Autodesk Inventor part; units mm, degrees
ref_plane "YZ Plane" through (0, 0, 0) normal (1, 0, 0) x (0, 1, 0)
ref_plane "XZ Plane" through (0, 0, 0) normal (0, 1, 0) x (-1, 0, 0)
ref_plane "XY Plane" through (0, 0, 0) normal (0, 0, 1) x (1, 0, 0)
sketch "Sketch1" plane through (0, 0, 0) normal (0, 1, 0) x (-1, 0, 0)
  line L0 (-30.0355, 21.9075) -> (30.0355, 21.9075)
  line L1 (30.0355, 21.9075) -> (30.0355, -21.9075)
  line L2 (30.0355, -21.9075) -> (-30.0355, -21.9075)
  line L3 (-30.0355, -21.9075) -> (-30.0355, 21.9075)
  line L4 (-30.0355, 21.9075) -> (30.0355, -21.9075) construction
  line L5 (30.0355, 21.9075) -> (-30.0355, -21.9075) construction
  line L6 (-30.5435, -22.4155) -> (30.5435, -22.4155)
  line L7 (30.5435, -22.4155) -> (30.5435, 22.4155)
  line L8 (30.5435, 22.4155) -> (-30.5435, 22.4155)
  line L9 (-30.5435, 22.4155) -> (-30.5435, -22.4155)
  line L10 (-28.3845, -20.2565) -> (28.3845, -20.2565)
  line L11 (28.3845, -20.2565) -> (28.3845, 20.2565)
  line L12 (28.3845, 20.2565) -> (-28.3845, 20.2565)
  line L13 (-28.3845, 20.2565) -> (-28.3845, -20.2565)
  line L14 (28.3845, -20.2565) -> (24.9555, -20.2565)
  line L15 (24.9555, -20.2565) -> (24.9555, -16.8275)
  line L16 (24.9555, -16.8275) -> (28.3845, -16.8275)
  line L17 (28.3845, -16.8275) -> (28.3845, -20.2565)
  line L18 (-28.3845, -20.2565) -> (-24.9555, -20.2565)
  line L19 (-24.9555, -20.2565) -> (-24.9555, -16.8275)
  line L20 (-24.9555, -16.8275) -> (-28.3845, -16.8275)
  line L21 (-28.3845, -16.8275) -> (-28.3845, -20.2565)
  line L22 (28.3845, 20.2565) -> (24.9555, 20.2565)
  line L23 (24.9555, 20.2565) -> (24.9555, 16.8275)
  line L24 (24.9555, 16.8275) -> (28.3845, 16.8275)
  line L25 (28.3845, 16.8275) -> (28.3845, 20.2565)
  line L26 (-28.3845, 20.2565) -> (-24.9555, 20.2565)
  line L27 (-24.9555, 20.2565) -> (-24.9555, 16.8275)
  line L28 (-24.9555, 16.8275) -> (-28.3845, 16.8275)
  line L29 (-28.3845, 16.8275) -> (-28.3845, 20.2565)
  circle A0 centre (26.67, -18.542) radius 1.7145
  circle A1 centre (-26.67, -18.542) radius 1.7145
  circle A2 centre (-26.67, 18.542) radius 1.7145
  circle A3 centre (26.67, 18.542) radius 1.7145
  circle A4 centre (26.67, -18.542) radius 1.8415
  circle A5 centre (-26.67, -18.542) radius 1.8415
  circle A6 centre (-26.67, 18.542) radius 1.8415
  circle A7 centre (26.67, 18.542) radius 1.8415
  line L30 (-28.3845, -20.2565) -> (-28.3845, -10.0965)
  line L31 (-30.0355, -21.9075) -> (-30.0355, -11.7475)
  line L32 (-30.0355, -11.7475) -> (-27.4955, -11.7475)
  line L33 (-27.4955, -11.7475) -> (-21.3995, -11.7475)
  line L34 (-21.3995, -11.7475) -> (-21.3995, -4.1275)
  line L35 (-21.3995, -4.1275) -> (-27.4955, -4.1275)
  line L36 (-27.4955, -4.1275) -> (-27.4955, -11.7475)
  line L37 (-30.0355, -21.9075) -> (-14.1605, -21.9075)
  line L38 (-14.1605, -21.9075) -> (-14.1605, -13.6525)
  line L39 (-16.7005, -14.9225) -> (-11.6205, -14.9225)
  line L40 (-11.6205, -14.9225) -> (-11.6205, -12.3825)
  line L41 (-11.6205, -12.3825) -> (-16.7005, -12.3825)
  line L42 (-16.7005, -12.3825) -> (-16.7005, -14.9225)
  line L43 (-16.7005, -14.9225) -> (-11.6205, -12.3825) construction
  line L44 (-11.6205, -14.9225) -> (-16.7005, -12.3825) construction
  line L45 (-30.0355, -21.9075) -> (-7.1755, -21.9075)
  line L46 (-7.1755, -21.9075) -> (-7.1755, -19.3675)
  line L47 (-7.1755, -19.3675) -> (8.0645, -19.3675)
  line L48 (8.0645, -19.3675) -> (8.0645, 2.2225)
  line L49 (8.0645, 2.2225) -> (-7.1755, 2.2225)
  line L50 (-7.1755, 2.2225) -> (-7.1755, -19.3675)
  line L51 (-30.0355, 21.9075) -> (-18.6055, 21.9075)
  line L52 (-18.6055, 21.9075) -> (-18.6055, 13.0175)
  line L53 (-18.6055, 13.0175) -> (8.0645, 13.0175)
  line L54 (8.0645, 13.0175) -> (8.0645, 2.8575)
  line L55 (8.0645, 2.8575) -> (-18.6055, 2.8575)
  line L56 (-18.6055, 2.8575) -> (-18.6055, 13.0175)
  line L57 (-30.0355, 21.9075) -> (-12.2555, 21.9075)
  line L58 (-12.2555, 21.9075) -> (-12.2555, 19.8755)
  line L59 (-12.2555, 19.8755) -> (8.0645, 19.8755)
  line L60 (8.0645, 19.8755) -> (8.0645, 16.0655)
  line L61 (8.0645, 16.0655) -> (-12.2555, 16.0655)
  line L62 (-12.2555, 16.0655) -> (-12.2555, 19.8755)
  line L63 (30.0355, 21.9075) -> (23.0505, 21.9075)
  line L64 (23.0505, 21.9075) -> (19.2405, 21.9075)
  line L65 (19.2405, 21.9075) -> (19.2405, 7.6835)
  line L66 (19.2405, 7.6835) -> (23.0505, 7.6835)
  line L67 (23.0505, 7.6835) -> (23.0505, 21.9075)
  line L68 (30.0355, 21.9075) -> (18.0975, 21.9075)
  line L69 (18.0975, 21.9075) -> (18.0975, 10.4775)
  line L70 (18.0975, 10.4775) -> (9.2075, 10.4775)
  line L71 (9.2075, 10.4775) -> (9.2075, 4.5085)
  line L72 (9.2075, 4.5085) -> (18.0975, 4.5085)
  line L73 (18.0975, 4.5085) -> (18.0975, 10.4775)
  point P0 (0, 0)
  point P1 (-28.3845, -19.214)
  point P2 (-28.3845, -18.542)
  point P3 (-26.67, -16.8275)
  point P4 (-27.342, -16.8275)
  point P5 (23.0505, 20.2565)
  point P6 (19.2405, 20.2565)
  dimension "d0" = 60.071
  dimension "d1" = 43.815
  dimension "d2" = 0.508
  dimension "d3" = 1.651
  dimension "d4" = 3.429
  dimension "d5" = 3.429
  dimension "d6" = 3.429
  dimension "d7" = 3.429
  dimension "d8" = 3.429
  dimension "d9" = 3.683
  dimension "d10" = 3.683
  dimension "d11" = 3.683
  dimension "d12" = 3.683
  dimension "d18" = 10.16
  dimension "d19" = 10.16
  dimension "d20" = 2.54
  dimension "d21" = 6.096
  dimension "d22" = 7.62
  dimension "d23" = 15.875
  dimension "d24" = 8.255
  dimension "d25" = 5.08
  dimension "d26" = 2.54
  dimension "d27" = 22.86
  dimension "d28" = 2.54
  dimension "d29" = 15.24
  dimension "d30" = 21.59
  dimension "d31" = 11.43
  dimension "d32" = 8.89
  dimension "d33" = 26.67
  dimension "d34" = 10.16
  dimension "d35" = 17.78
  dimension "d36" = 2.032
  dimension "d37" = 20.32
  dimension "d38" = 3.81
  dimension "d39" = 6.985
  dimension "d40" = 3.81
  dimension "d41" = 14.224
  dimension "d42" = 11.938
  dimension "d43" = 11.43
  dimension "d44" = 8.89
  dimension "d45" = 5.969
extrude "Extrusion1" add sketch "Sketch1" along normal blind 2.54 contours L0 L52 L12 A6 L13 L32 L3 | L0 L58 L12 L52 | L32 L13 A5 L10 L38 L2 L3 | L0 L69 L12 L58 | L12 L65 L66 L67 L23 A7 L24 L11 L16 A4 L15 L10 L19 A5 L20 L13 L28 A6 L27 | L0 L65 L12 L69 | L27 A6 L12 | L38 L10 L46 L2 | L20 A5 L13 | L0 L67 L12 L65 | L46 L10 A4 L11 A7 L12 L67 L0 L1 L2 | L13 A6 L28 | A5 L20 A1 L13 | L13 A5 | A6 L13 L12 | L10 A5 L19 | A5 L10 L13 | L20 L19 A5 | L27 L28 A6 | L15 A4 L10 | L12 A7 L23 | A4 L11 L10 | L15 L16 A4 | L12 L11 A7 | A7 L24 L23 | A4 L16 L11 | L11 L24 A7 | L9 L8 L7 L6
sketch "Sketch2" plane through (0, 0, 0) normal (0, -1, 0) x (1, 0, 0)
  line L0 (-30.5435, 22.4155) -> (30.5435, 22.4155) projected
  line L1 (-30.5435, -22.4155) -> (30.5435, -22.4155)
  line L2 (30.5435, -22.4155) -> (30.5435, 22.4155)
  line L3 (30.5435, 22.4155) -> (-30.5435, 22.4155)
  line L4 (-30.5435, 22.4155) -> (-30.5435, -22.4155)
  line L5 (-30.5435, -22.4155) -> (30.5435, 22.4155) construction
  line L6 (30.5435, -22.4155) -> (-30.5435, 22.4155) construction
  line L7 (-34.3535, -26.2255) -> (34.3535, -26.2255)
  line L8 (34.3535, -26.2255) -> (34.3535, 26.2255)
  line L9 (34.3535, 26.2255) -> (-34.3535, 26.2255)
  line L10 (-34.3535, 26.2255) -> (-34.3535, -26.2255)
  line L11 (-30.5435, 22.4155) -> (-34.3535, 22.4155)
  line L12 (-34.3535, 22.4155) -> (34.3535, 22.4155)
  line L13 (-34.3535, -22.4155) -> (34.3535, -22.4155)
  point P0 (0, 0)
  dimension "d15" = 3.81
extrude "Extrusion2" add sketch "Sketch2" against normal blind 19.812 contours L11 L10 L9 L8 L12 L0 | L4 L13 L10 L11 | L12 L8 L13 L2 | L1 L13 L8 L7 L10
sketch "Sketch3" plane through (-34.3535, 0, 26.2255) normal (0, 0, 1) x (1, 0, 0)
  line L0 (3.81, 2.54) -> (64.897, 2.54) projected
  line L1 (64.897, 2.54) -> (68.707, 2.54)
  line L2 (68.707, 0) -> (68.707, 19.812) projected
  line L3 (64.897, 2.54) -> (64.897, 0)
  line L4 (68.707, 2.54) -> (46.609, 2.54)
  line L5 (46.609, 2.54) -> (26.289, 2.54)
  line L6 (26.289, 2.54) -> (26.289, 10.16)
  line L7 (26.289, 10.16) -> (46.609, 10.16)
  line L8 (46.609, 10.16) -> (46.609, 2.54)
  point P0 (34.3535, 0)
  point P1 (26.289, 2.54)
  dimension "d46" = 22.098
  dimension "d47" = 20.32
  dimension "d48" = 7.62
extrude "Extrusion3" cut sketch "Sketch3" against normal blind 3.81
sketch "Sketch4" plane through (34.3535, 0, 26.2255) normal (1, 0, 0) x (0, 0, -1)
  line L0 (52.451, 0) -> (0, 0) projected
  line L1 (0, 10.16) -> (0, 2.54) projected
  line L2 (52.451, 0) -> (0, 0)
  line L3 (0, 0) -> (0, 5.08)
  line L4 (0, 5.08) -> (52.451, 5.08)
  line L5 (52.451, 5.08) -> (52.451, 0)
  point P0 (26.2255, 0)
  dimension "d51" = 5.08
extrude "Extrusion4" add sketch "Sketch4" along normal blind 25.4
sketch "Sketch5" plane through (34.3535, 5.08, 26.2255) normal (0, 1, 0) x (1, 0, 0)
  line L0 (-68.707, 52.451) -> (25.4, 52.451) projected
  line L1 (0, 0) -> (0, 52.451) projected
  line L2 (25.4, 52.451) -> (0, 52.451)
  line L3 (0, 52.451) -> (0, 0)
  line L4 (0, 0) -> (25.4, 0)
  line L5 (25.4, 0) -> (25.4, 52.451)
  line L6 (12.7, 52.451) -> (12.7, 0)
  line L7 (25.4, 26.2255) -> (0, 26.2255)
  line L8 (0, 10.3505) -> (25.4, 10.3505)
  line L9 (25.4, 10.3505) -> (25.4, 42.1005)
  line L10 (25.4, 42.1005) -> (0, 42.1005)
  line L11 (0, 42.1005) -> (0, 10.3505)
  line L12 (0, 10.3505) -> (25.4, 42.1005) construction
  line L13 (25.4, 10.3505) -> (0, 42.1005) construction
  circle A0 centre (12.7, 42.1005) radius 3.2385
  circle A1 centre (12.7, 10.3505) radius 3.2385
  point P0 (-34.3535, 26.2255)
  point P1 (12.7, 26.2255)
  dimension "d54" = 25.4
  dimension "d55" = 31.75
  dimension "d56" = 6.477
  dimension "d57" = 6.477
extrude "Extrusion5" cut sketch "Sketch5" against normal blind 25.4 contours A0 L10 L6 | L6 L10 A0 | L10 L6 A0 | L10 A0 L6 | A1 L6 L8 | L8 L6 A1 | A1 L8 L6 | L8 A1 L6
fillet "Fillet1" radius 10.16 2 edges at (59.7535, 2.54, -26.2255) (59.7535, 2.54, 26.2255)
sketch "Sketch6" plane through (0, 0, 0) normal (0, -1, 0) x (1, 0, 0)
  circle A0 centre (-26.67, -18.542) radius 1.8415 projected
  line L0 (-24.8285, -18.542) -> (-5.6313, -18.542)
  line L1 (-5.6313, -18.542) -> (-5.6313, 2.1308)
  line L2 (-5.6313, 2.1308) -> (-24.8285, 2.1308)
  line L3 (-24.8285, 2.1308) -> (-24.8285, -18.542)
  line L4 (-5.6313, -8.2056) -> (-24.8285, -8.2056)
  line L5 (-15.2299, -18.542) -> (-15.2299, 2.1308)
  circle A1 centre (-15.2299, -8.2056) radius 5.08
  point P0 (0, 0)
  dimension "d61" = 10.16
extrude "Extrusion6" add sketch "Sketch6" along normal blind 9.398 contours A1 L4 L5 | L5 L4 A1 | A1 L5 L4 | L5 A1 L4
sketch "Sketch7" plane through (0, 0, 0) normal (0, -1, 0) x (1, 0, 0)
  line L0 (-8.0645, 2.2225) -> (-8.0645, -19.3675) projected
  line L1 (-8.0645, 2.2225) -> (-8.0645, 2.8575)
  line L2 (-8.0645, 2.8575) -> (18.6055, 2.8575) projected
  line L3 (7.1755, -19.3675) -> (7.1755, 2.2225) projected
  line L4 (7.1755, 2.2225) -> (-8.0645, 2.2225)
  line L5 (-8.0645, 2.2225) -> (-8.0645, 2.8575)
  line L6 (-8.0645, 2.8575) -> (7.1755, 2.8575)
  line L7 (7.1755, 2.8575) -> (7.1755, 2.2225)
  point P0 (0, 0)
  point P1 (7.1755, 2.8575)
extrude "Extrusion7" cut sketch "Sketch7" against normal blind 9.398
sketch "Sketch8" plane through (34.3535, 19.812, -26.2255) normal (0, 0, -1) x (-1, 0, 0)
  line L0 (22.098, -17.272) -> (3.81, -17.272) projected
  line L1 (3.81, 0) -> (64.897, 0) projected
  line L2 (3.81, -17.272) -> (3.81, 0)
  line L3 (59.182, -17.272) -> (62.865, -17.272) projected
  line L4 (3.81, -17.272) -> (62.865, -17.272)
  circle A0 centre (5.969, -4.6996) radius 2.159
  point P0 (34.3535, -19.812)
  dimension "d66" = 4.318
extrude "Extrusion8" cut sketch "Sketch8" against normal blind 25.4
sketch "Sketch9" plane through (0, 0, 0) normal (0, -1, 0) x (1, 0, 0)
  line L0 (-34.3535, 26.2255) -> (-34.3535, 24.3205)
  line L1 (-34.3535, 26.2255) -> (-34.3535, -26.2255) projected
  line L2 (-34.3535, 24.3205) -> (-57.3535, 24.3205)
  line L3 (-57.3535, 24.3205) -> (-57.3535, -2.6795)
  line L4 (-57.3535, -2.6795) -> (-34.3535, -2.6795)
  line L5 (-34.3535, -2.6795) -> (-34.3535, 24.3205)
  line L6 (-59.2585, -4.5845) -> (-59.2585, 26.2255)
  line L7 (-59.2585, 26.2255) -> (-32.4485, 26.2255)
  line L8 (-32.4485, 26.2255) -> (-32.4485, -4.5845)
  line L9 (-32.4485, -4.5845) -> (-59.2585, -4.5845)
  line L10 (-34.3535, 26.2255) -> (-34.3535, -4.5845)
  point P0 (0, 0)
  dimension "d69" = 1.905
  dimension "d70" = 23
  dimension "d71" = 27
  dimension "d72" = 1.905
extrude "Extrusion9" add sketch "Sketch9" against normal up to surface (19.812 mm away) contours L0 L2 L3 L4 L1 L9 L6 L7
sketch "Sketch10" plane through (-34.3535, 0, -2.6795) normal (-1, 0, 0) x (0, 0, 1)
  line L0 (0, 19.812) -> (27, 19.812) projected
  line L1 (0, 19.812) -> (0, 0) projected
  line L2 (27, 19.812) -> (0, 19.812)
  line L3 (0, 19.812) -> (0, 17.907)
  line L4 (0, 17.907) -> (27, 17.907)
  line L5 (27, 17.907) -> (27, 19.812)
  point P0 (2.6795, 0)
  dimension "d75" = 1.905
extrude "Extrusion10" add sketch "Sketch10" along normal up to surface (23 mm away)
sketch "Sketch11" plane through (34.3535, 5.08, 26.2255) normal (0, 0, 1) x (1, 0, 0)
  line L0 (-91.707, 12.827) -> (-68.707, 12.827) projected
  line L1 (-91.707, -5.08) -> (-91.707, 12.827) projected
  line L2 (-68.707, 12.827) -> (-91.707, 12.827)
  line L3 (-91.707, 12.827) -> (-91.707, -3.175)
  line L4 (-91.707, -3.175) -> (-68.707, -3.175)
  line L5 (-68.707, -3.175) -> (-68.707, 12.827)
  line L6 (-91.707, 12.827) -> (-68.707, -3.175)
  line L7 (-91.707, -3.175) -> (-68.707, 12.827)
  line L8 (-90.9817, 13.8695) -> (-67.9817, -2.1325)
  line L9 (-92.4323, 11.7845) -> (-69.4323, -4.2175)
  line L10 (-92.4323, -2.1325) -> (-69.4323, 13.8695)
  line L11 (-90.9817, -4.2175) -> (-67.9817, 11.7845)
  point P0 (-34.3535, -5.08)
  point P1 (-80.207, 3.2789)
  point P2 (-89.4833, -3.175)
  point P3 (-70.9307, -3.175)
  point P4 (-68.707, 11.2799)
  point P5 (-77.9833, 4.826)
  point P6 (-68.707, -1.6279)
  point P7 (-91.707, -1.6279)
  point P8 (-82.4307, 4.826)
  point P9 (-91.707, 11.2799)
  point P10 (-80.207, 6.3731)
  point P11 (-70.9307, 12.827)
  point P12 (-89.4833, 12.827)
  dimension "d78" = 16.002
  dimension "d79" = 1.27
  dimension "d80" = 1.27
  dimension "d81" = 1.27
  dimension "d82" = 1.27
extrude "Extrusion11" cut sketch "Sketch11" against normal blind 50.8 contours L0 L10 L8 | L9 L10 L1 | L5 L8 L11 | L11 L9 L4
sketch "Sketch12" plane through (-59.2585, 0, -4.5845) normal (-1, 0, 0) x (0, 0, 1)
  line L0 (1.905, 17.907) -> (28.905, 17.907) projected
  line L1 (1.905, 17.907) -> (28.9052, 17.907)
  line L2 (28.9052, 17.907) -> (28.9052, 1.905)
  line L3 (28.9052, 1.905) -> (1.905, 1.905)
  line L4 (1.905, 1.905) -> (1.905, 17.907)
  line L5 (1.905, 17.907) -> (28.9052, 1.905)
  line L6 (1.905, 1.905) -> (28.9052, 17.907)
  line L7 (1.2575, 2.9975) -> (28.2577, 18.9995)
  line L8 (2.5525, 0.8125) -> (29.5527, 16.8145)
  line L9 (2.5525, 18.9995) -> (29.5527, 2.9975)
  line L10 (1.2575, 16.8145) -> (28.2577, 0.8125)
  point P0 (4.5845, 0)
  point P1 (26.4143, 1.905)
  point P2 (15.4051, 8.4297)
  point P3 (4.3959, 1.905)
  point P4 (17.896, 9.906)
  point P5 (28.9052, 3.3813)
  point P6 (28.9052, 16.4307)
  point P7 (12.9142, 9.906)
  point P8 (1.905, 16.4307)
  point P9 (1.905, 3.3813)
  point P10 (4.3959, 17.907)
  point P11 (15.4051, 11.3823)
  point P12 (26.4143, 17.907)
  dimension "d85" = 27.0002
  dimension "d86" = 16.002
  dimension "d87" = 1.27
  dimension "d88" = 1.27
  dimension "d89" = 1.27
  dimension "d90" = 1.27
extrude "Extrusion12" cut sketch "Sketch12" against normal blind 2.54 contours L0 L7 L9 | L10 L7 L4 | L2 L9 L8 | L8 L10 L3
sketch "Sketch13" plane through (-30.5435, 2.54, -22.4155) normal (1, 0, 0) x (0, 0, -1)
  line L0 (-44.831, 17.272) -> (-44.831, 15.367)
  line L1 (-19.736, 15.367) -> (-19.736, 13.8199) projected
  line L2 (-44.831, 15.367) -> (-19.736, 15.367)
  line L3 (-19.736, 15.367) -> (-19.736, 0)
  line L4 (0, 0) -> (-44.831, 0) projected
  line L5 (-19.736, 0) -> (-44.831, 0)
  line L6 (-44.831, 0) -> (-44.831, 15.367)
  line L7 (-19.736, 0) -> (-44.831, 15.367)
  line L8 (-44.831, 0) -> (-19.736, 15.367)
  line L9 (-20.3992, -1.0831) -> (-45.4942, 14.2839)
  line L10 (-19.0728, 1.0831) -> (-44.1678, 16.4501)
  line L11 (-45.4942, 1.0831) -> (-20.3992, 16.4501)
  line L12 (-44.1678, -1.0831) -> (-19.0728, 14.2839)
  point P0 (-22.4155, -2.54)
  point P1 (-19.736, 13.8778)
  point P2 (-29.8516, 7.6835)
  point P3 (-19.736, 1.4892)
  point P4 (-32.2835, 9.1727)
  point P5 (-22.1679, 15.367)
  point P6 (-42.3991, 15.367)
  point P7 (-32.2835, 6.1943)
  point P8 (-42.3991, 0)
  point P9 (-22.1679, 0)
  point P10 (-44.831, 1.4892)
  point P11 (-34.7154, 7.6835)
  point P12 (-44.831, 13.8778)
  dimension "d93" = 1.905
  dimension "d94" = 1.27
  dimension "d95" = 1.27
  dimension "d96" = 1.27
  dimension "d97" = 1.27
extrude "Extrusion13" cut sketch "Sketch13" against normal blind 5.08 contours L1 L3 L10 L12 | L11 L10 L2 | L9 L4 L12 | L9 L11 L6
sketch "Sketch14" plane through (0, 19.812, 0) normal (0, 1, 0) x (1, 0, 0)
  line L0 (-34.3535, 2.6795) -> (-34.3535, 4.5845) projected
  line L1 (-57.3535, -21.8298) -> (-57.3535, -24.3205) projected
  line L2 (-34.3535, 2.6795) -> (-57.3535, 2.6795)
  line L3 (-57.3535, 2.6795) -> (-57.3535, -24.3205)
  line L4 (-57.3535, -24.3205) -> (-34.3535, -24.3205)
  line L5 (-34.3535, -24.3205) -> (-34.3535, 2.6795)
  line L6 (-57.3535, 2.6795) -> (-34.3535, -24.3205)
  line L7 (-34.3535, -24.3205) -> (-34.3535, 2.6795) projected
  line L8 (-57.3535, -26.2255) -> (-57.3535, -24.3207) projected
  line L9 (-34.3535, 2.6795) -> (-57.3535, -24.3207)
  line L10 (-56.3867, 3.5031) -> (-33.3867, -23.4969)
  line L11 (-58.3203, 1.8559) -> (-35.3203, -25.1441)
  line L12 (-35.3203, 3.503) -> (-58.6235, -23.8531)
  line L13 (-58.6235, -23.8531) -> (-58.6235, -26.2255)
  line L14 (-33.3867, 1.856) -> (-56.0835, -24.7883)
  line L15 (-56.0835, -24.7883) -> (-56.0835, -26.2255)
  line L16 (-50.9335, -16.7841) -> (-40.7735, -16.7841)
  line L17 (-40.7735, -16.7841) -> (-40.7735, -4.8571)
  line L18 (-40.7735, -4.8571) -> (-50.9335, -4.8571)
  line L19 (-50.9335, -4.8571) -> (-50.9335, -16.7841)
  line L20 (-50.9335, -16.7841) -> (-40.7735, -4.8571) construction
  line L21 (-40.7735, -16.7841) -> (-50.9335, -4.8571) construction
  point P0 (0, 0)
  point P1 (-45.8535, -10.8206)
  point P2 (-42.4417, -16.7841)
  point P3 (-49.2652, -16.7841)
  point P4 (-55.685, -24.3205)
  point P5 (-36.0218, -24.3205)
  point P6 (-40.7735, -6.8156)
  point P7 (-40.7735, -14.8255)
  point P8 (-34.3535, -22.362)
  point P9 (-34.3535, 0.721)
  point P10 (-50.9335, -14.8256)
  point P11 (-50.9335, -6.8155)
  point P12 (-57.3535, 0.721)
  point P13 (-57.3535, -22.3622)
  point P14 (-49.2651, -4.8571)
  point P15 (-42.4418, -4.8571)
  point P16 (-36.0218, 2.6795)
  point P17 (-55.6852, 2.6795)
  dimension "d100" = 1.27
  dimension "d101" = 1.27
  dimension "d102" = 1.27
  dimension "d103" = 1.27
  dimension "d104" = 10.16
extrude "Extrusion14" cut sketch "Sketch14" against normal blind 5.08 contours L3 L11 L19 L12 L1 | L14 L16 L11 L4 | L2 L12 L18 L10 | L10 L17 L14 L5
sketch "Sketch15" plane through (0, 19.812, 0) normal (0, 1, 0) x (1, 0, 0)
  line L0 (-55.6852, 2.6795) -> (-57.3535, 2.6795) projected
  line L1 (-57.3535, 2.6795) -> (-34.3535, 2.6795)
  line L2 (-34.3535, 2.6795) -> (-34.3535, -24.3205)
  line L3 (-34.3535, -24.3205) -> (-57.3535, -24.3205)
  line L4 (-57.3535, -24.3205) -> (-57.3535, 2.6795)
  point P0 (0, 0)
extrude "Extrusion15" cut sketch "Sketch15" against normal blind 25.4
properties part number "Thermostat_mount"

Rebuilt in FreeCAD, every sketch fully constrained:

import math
import FreeCAD as App
import Part
import Sketcher
Q = App.Units.Quantity


def edges_at(feature, points):
    """Names of the edges that pass closest to the given points."""
    edges = feature.Shape.Edges
    near = lambda p: min(range(len(edges)), key=lambda i: edges[i].distToShape(Part.Vertex(*p))[0])
    return sorted({f"Edge{near(p) + 1}" for p in points})


def add_polygon(sketch, points):
    """Adds a closed chain of lines whose ends are joined by coincident constraints."""
    first, n = sketch.GeometryCount, len(points)
    for a, b in zip(points, points[1:] + points[:1]):
        sketch.addGeometry(Part.LineSegment(App.Vector(*a, 0), App.Vector(*b, 0)), False)
    for i in range(n):
        sketch.addConstraint(Sketcher.Constraint("Coincident", first + i, 2, first + (i + 1) % n, 1))

doc = App.newDocument("Part")
body = doc.addObject("PartDesign::Body", "Body")

# Sketch on XZ plane
sketch1 = body.newObject("Sketcher::SketchObject", "Sketch")
sketch1.AttachmentSupport = (doc.getObject("XZ_Plane"), [""])
sketch1.MapMode = "FlatFace"
add_polygon(sketch1, [(30.5435, 22.4155), (30.5435, -22.4155), (-30.5435, -22.4155), (-30.5435, 22.4155)])  # lines 0-3
sketch1.addGeometry(Part.Circle(App.Vector(26.67, 18.542, 0), App.Vector(0, 0, 1), 1.8415), False)  # 4
add_polygon(sketch1, [(-19.2405, 7.6835), (-19.2405, 20.2565), (-23.0505, 20.2565), (-23.0505, 7.6835)])  # lines 5-8
sketch1.addGeometry(Part.Circle(App.Vector(-26.67, 18.542, 0), App.Vector(0, 0, 1), 1.8415), False)  # 9
sketch1.addGeometry(Part.Circle(App.Vector(-26.67, -18.542, 0), App.Vector(0, 0, 1), 1.8415), False)  # 10
sketch1.addGeometry(Part.LineSegment(App.Vector(28.3845, -19.214021, 0), App.Vector(28.3845, -18.542, 0)), False)  # 11
sketch1.addGeometry(Part.ArcOfCircle(Part.Circle(App.Vector(26.67, -18.542, 0), App.Vector(0, 0, 1), 1.7145), math.radians(0), math.radians(90)), False)  # 12
sketch1.addGeometry(Part.LineSegment(App.Vector(26.67, -16.8275, 0), App.Vector(27.342021, -16.8275, 0)), False)  # 13
sketch1.addGeometry(Part.ArcOfCircle(Part.Circle(App.Vector(26.67, -18.542, 0), App.Vector(0, 0, 1), 1.8415), math.radians(68.59665), math.radians(338.59665)), False)  # 14
add_polygon(sketch1, [(11.6205, -14.9225), (14.1605, -14.9225), (16.7005, -14.9225), (16.7005, -12.3825), (11.6205, -12.3825)])  # lines 15-19
add_polygon(sketch1, [(21.3995, -11.7475), (27.4955, -11.7475), (27.4955, -4.1275), (21.3995, -4.1275)])  # lines 20-23
add_polygon(sketch1, [(-8.0645, -19.3675), (7.1755, -19.3675), (7.1755, 2.2225), (-8.0645, 2.2225)])  # lines 24-27
add_polygon(sketch1, [(18.6055, 2.8575), (18.6055, 13.0175), (-8.0645, 13.0175), (-8.0645, 2.8575)])  # lines 28-31
add_polygon(sketch1, [(12.2555, 16.0655), (12.2555, 19.8755), (-8.0645, 19.8755), (-8.0645, 16.0655)])  # lines 32-35
add_polygon(sketch1, [(-9.2075, 10.4775), (-18.0975, 10.4775), (-18.0975, 4.5085), (-9.2075, 4.5085)])  # lines 36-39
sketch1.addConstraint(Sketcher.Constraint("Tangent", 11, 2, 12, 1))
sketch1.addConstraint(Sketcher.Constraint("Tangent", 12, 2, 13, 1))
sketch1.addConstraint(Sketcher.Constraint("Coincident", 13, 2, 14, 1))
sketch1.addConstraint(Sketcher.Constraint("Coincident", 14, 2, 11, 1))
sketch1.addConstraint(Sketcher.Constraint("Vertical", 0))
sketch1.addConstraint(Sketcher.Constraint("Horizontal", 1))
sketch1.addConstraint(Sketcher.Constraint("Vertical", 2))
sketch1.addConstraint(Sketcher.Constraint("Horizontal", 3))
sketch1.addConstraint(Sketcher.Constraint("Vertical", 5))
sketch1.addConstraint(Sketcher.Constraint("Horizontal", 6))
sketch1.addConstraint(Sketcher.Constraint("Vertical", 7))
sketch1.addConstraint(Sketcher.Constraint("Horizontal", 8))
sketch1.addConstraint(Sketcher.Constraint("Vertical", 11))
sketch1.addConstraint(Sketcher.Constraint("Horizontal", 13))
sketch1.addConstraint(Sketcher.Constraint("Horizontal", 15))
sketch1.addConstraint(Sketcher.Constraint("Horizontal", 16))
sketch1.addConstraint(Sketcher.Constraint("Vertical", 17))
sketch1.addConstraint(Sketcher.Constraint("Horizontal", 18))
sketch1.addConstraint(Sketcher.Constraint("Vertical", 19))
sketch1.addConstraint(Sketcher.Constraint("Horizontal", 20))
sketch1.addConstraint(Sketcher.Constraint("Vertical", 21))
sketch1.addConstraint(Sketcher.Constraint("Horizontal", 22))
sketch1.addConstraint(Sketcher.Constraint("Vertical", 23))
sketch1.addConstraint(Sketcher.Constraint("Horizontal", 24))
sketch1.addConstraint(Sketcher.Constraint("Vertical", 25))
sketch1.addConstraint(Sketcher.Constraint("Horizontal", 26))
sketch1.addConstraint(Sketcher.Constraint("Vertical", 27))
sketch1.addConstraint(Sketcher.Constraint("Vertical", 28))
sketch1.addConstraint(Sketcher.Constraint("Horizontal", 29))
sketch1.addConstraint(Sketcher.Constraint("Vertical", 30))
sketch1.addConstraint(Sketcher.Constraint("Horizontal", 31))
sketch1.addConstraint(Sketcher.Constraint("Vertical", 32))
sketch1.addConstraint(Sketcher.Constraint("Horizontal", 33))
sketch1.addConstraint(Sketcher.Constraint("Vertical", 34))
sketch1.addConstraint(Sketcher.Constraint("Horizontal", 35))
sketch1.addConstraint(Sketcher.Constraint("Horizontal", 36))
sketch1.addConstraint(Sketcher.Constraint("Vertical", 37))
sketch1.addConstraint(Sketcher.Constraint("Horizontal", 38))
sketch1.addConstraint(Sketcher.Constraint("Vertical", 39))
sketch1.addConstraint(Sketcher.Constraint("Coincident", 14, 3, 12, 3))
sketch1.addConstraint(Sketcher.Constraint("Equal", 4, 9))
sketch1.addConstraint(Sketcher.Constraint("Equal", 9, 10))
sketch1.addConstraint(Sketcher.Constraint("Equal", 10, 14))
sketch1.addConstraint(Sketcher.Constraint("Symmetric", 4, 3, 10, 3, -1, 1))
sketch1.addConstraint(Sketcher.Constraint("Symmetric", 9, 3, 12, 3, -1, 1))
sketch1.addConstraint(Sketcher.Constraint("Symmetric", 0, 2, 2, 2, -1, 1))
sketch1.addConstraint(Sketcher.Constraint("Symmetric", 4, 3, 9, 3, -2))
sketch1.addConstraint(Sketcher.Constraint("Vertical", 27, 2, 29, 2))
sketch1.addConstraint(Sketcher.Constraint("Vertical", 30, 2, 33, 2))
sketch1.addConstraint(Sketcher.Constraint("Equal", 15, 16))
sketch1.addConstraint(Sketcher.Constraint("Equal", 16, 17))
sketch1.addConstraint(Sketcher.Constraint("Equal", 8, 32))
sketch1.addConstraint(Sketcher.Constraint("Diameter", 4, Q("0.145 in")))
sketch1.addConstraint(Sketcher.Constraint("DistanceX", 15, 1, 15, 2, Q("0.1 in")))
sketch1.addConstraint(Sketcher.Constraint("DistanceX", 24, 1, 24, 2, Q("0.6 in")))
sketch1.addConstraint(Sketcher.Constraint("DistanceX", 33, 2, 33, 1, Q("0.8 in")))
sketch1.addConstraint(Sketcher.Constraint("DistanceY", 21, 1, 21, 2, Q("0.3 in")))
sketch1.addConstraint(Sketcher.Constraint("DistanceY", 28, 1, 28, 2, Q("0.4 in")))
sketch1.addConstraint(Sketcher.Constraint("DistanceX", 6, 2, 6, 1, Q("0.15 in")))
sketch1.addConstraint(Sketcher.Constraint("DistanceX", 20, 1, 20, 2, Q("0.24 in")))
sketch1.addConstraint(Sketcher.Constraint("DistanceX", 29, 2, 29, 1, Q("1.05 in")))
sketch1.addConstraint(Sketcher.Constraint("DistanceX", 36, 2, 36, 1, Q("0.35 in")))
sketch1.addConstraint(Sketcher.Constraint("DistanceY", 25, 1, 25, 2, Q("0.85 in")))
sketch1.addConstraint(Sketcher.Constraint("Radius", 12, Q("0.0675 in")))
sketch1.addConstraint(Sketcher.Constraint("DistanceY", 13, 2, 20, 2, Q("0.2 in")))
sketch1.addConstraint(Sketcher.Constraint("DistanceY", 32, 2, 3, 2, Q("0.1 in")))
sketch1.addConstraint(Sketcher.Constraint("DistanceY", 36, 2, 29, 2, Q("0.1 in")))
sketch1.addConstraint(Sketcher.Constraint("DistanceY", 37, 2, 37, 1, Q("0.235 in")))
sketch1.addConstraint(Sketcher.Constraint("DistanceX", -1, 1, 4, 3, Q("1.05 in")))
sketch1.addConstraint(Sketcher.Constraint("DistanceX", 15, 2, 11, 2, Q("0.56 in")))
sketch1.addConstraint(Sketcher.Constraint("DistanceX", 25, 2, 22, 2, Q("0.56 in")))
sketch1.addConstraint(Sketcher.Constraint("DistanceX", 28, 2, 3, 2, Q("0.47 in")))
sketch1.addConstraint(Sketcher.Constraint("DistanceY", 17, 2, 21, 2, Q("0.325 in")))
sketch1.addConstraint(Sketcher.Constraint("DistanceX", 24, 2, 15, 2, Q("0.275 in")))
sketch1.addConstraint(Sketcher.Constraint("DistanceY", 24, 2, 18, 2, Q("0.275 in")))
sketch1.addConstraint(Sketcher.Constraint("DistanceY", 22, 2, 31, 2, Q("0.275 in")))
sketch1.addConstraint(Sketcher.Constraint("DistanceY", 0, 2, 0, 1, Q("1.765 in")))
sketch1.addConstraint(Sketcher.Constraint("DistanceY", 5, 1, 5, 2, Q("0.495 in")))
sketch1.addConstraint(Sketcher.Constraint("DistanceY", -1, 1, 4, 3, Q("0.73 in")))
sketch1.addConstraint(Sketcher.Constraint("DistanceY", 1, 2, 5, 2, Q("1.68 in")))
sketch1.addConstraint(Sketcher.Constraint("DistanceX", 8, 2, 26, 2, Q("0.44 in")))
sketch1.addConstraint(Sketcher.Constraint("DistanceX", 8, 2, 36, 2, Q("0.045 in")))
pad1 = body.newObject("PartDesign::Pad", "Pad")
pad1.Profile = sketch1
pad1.Length = Q("0.1 in")
pad1.Reversed = True

# Sketch on XZ plane
sketch2 = body.newObject("Sketcher::SketchObject", "Sketch001")
sketch2.AttachmentSupport = (doc.getObject("XZ_Plane"), [""])
sketch2.MapMode = "FlatFace"
add_polygon(sketch2, [(-34.3535, 26.2255), (-34.3535, -26.2255), (34.3535, -26.2255), (34.3535, 26.2255)])  # lines 0-3
add_polygon(sketch2, [(-30.5435, 22.4155), (30.5435, 22.4155), (30.5435, -22.4155), (-30.5435, -22.4155)])  # lines 4-7
sketch2.addConstraint(Sketcher.Constraint("Vertical", 0))
sketch2.addConstraint(Sketcher.Constraint("Horizontal", 1))
sketch2.addConstraint(Sketcher.Constraint("Vertical", 2))
sketch2.addConstraint(Sketcher.Constraint("Horizontal", 3))
sketch2.addConstraint(Sketcher.Constraint("Horizontal", 4))
sketch2.addConstraint(Sketcher.Constraint("Vertical", 5))
sketch2.addConstraint(Sketcher.Constraint("Horizontal", 6))
sketch2.addConstraint(Sketcher.Constraint("Vertical", 7))
sketch2.addConstraint(Sketcher.Constraint("Symmetric", 0, 2, 2, 2, -1, 1))
sketch2.addConstraint(Sketcher.Constraint("Symmetric", 4, 2, 6, 2, -1, 1))
sketch2.addConstraint(Sketcher.Constraint("DistanceX", 4, 2, 2, 2, Q("0.15 in")))
sketch2.addConstraint(Sketcher.Constraint("DistanceY", 4, 2, 2, 2, Q("0.15 in")))
sketch2.addConstraint(Sketcher.Constraint("DistanceX", 1, 1, 1, 2, Q("2.705 in")))
sketch2.addConstraint(Sketcher.Constraint("DistanceY", 0, 2, 0, 1, Q("2.065 in")))
pad2 = body.newObject("PartDesign::Pad", "Pad001")
pad2.Profile = sketch2
pad2.Length = Q("0.78 in")
pad2.Reversed = True

# Sketch on XY plane
sketch3 = body.newObject("Sketcher::SketchObject", "Sketch002")
sketch3.AttachmentSupport = (doc.getObject("XY_Plane"), [""])
sketch3.MapMode = "FlatFace"
sketch3.AttachmentOffset = App.Placement(App.Vector(0, 0, 1.0325 * 25.4), App.Rotation())
add_polygon(sketch3, [(-8.0645, 10.16), (-8.0645, 2.54), (12.2555, 2.54), (12.2555, 10.16)])  # lines 0-3
sketch3.addConstraint(Sketcher.Constraint("Vertical", 0))
sketch3.addConstraint(Sketcher.Constraint("Horizontal", 1))
sketch3.addConstraint(Sketcher.Constraint("Vertical", 2))
sketch3.addConstraint(Sketcher.Constraint("Horizontal", 3))
sketch3.addConstraint(Sketcher.Constraint("DistanceX", 1, 1, 1, 2, Q("0.8 in")))
sketch3.addConstraint(Sketcher.Constraint("DistanceY", 0, 2, 0, 1, Q("0.3 in")))
sketch3.addConstraint(Sketcher.Constraint("DistanceY", -1, 1, 0, 2, Q("0.1 in")))
sketch3.addConstraint(Sketcher.Constraint("DistanceX", 0, 2, -1, 1, Q("0.3175 in")))
pocket1 = body.newObject("PartDesign::Pocket", "Pocket")
pocket1.Profile = sketch3
pocket1.Length = Q("0.15 in")

# Sketch on YZ plane
sketch4 = body.newObject("Sketcher::SketchObject", "Sketch003")
sketch4.AttachmentSupport = (doc.getObject("YZ_Plane"), [""])
sketch4.MapMode = "FlatFace"
sketch4.AttachmentOffset = App.Placement(App.Vector(0, 0, 1.3525 * 25.4), App.Rotation())
add_polygon(sketch4, [(0, 26.2255), (0, -26.2255), (5.08, -26.2255), (5.08, 26.2255)])  # lines 0-3
sketch4.addConstraint(Sketcher.Constraint("Vertical", 0))
sketch4.addConstraint(Sketcher.Constraint("Horizontal", 1))
sketch4.addConstraint(Sketcher.Constraint("Vertical", 2))
sketch4.addConstraint(Sketcher.Constraint("Horizontal", 3))
sketch4.addConstraint(Sketcher.Constraint("Symmetric", 0, 2, 3, 2, -1, 1))
sketch4.addConstraint(Sketcher.Constraint("DistanceX", 1, 1, 1, 2, Q("0.2 in")))
sketch4.addConstraint(Sketcher.Constraint("DistanceY", 0, 2, 0, 1, Q("2.065 in")))
pad3 = body.newObject("PartDesign::Pad", "Pad002")
pad3.Profile = sketch4
pad3.Length = Q("1 in")

# Sketch on XZ plane
sketch5 = body.newObject("Sketcher::SketchObject", "Sketch004")
sketch5.AttachmentSupport = (doc.getObject("XZ_Plane"), [""])
sketch5.MapMode = "FlatFace"
sketch5.AttachmentOffset = App.Placement(App.Vector(0, 0, -0.2 * 25.4), App.Rotation())
sketch5.addGeometry(Part.Circle(App.Vector(47.0535, -15.875, 0), App.Vector(0, 0, 1), 3.2385), False)
sketch5.addGeometry(Part.Circle(App.Vector(47.0535, 15.875, 0), App.Vector(0, 0, 1), 3.2385), False)
sketch5.addConstraint(Sketcher.Constraint("Equal", 0, 1))
sketch5.addConstraint(Sketcher.Constraint("Symmetric", 0, 3, 1, 3, -1))
sketch5.addConstraint(Sketcher.Constraint("Diameter", 0, Q("0.255 in")))
sketch5.addConstraint(Sketcher.Constraint("DistanceY", 0, 3, 1, 3, Q("1.25 in")))
sketch5.addConstraint(Sketcher.Constraint("DistanceX", -1, 1, 0, 3, Q("1.8525 in")))
pocket2 = body.newObject("PartDesign::Pocket", "Pocket001")
pocket2.Profile = sketch5
pocket2.Length = Q("1 in")
pocket2.Reversed = True
doc.recompute()

fillet = body.newObject("PartDesign::Fillet", "Fillet")
fillet.Base = (pocket2, edges_at(pocket2, [(59.754, 2.54, -26.226), (59.754, 2.54, 26.226)]))
fillet.Radius = Q("0.4 in")

# Sketch on XZ plane
sketch6 = body.newObject("Sketcher::SketchObject", "Sketch005")
sketch6.AttachmentSupport = (doc.getObject("XZ_Plane"), [""])
sketch6.MapMode = "FlatFace"
sketch6.addGeometry(Part.Circle(App.Vector(-15.2299, -8.2056, 0), App.Vector(0, 0, 1), 5.08), False)
sketch6.addConstraint(Sketcher.Constraint("Diameter", 0, Q("0.4 in")))
sketch6.addConstraint(Sketcher.Constraint("DistanceX", 0, 3, -1, 1, Q("0.5996 in")))
sketch6.addConstraint(Sketcher.Constraint("DistanceY", 0, 3, -1, 1, 8.2056))
pad4 = body.newObject("PartDesign::Pad", "Pad003")
pad4.Profile = sketch6
pad4.Length = Q("0.37 in")

# Sketch on XZ plane
sketch7 = body.newObject("Sketcher::SketchObject", "Sketch006")
sketch7.AttachmentSupport = (doc.getObject("XZ_Plane"), [""])
sketch7.MapMode = "FlatFace"
add_polygon(sketch7, [(-8.0645, 2.8575), (-8.0645, 2.2225), (7.1755, 2.2225), (7.1755, 2.8575)])  # lines 0-3
sketch7.addConstraint(Sketcher.Constraint("Vertical", 0))
sketch7.addConstraint(Sketcher.Constraint("Horizontal", 1))
sketch7.addConstraint(Sketcher.Constraint("Vertical", 2))
sketch7.addConstraint(Sketcher.Constraint("Horizontal", 3))
sketch7.addConstraint(Sketcher.Constraint("DistanceX", 1, 1, 1, 2, Q("0.6 in")))
sketch7.addConstraint(Sketcher.Constraint("DistanceY", 0, 2, 0, 1, Q("0.025 in")))
sketch7.addConstraint(Sketcher.Constraint("DistanceX", 0, 2, -1, 1, Q("0.3175 in")))
sketch7.addConstraint(Sketcher.Constraint("DistanceY", -1, 1, 0, 2, Q("0.0875 in")))
pocket3 = body.newObject("PartDesign::Pocket", "Pocket002")
pocket3.Profile = sketch7
pocket3.Length = Q("0.37 in")

# Sketch on XY plane
sketch8 = body.newObject("Sketcher::SketchObject", "Sketch007")
sketch8.AttachmentSupport = (doc.getObject("XY_Plane"), [""])
sketch8.MapMode = "FlatFace"
sketch8.AttachmentOffset = App.Placement(App.Vector(0, 0, -1.0325 * 25.4), App.Rotation())
sketch8.addGeometry(Part.Circle(App.Vector(28.3845, 15.1124, 0), App.Vector(0, 0, 1), 2.159), False)
sketch8.addConstraint(Sketcher.Constraint("Diameter", 0, Q("0.17 in")))
sketch8.addConstraint(Sketcher.Constraint("DistanceX", -1, 1, 0, 3, Q("1.1175 in")))
sketch8.addConstraint(Sketcher.Constraint("DistanceY", -1, 1, 0, 3, 15.1124))
pocket4 = body.newObject("PartDesign::Pocket", "Pocket003")
pocket4.Profile = sketch8
pocket4.Length = Q("1 in")
pocket4.Reversed = True

# Sketch on XZ plane
sketch9 = body.newObject("Sketcher::SketchObject", "Sketch008")
sketch9.AttachmentSupport = (doc.getObject("XZ_Plane"), [""])
sketch9.MapMode = "FlatFace"
add_polygon(sketch9, [(-34.3535, 24.3205), (-34.3535, 26.2255), (-59.2585, 26.2255), (-59.2585, -4.5845), (-34.3535, -4.5845), (-34.3535, -2.6795), (-57.3535, -2.6795), (-57.3535, 24.3205)])  # lines 0-7
sketch9.addConstraint(Sketcher.Constraint("Vertical", 0))
sketch9.addConstraint(Sketcher.Constraint("Horizontal", 1))
sketch9.addConstraint(Sketcher.Constraint("Vertical", 2))
sketch9.addConstraint(Sketcher.Constraint("Horizontal", 3))
sketch9.addConstraint(Sketcher.Constraint("Vertical", 4))
sketch9.addConstraint(Sketcher.Constraint("Horizontal", 5))
sketch9.addConstraint(Sketcher.Constraint("Vertical", 6))
sketch9.addConstraint(Sketcher.Constraint("Horizontal", 7))
sketch9.addConstraint(Sketcher.Constraint("Vertical", 0, 2, 3, 2))
sketch9.addConstraint(Sketcher.Constraint("Equal", 0, 4))
sketch9.addConstraint(Sketcher.Constraint("DistanceY", 0, 1, 0, 2, Q("0.075 in")))
sketch9.addConstraint(Sketcher.Constraint("DistanceY", 6, 1, 6, 2, Q("1.063 in")))
sketch9.addConstraint(Sketcher.Constraint("DistanceX", 5, 2, 5, 1, Q("0.9055 in")))
sketch9.addConstraint(Sketcher.Constraint("DistanceX", 2, 2, 5, 2, Q("0.075 in")))
sketch9.addConstraint(Sketcher.Constraint("DistanceX", 1, 2, -1, 1, Q("2.333 in")))
sketch9.addConstraint(Sketcher.Constraint("DistanceY", -1, 1, 0, 2, Q("1.0325 in")))
pad5 = body.newObject("PartDesign::Pad", "Pad004")
pad5.Profile = sketch9
pad5.Length = Q("0.78 in")
pad5.Reversed = True

# Sketch on YZ plane
sketch10 = body.newObject("Sketcher::SketchObject", "Sketch009")
sketch10.AttachmentSupport = (doc.getObject("YZ_Plane"), [""])
sketch10.MapMode = "FlatFace"
sketch10.AttachmentOffset = App.Placement(App.Vector(0, 0, -1.3525 * 25.4), App.Rotation())
add_polygon(sketch10, [(19.812, 24.3205), (19.812, -2.6795), (17.907, -2.6795), (17.907, 24.3205)])  # lines 0-3
sketch10.addConstraint(Sketcher.Constraint("Vertical", 0))
sketch10.addConstraint(Sketcher.Constraint("Horizontal", 1))
sketch10.addConstraint(Sketcher.Constraint("Vertical", 2))
sketch10.addConstraint(Sketcher.Constraint("Horizontal", 3))
sketch10.addConstraint(Sketcher.Constraint("DistanceX", 1, 2, 1, 1, Q("0.075 in")))
sketch10.addConstraint(Sketcher.Constraint("DistanceY", 0, 2, 0, 1, Q("1.063 in")))
sketch10.addConstraint(Sketcher.Constraint("DistanceX", -1, 1, 0, 2, Q("0.78 in")))
sketch10.addConstraint(Sketcher.Constraint("DistanceY", 0, 2, -1, 1, Q("0.1055 in")))
pad6 = body.newObject("PartDesign::Pad", "Pad005")
pad6.Profile = sketch10
pad6.Length = Q("0.9055118 in")
pad6.Reversed = True

# Sketch on XY plane
sketch11 = body.newObject("Sketcher::SketchObject", "Sketch010")
sketch11.AttachmentSupport = (doc.getObject("XY_Plane"), [""])
sketch11.MapMode = "FlatFace"
sketch11.AttachmentOffset = App.Placement(App.Vector(0, 0, 1.0325 * 25.4), App.Rotation())
add_polygon(sketch11, [(-36.577206, 17.907), (-55.129794, 17.907), (-45.8535, 11.45312)])  # lines 0-2
add_polygon(sketch11, [(-48.077206, 9.906), (-57.3535, 16.35988), (-57.3535, 3.45212)])  # lines 3-5
add_polygon(sketch11, [(-34.3535, 3.45212), (-34.3535, 16.35988), (-43.629794, 9.906)])  # lines 6-8
add_polygon(sketch11, [(-45.8535, 8.35888), (-55.129794, 1.905), (-36.577206, 1.905)])  # lines 9-11
sketch11.addConstraint(Sketcher.Constraint("Horizontal", 0))
sketch11.addConstraint(Sketcher.Constraint("Vertical", 4))
sketch11.addConstraint(Sketcher.Constraint("Vertical", 6))
sketch11.addConstraint(Sketcher.Constraint("Horizontal", 10))
sketch11.addConstraint(Sketcher.Constraint("Parallel", 1, 3))
sketch11.addConstraint(Sketcher.Constraint("Parallel", 2, 5))
sketch11.addConstraint(Sketcher.Constraint("Parallel", 5, 7))
sketch11.addConstraint(Sketcher.Constraint("Parallel", 3, 8))
sketch11.addConstraint(Sketcher.Constraint("Parallel", 7, 9))
sketch11.addConstraint(Sketcher.Constraint("Parallel", 8, 11))
sketch11.addConstraint(Sketcher.Constraint("Horizontal", 3, 2, 6, 2))
sketch11.addConstraint(Sketcher.Constraint("Horizontal", 5, 2, 7, 2))
sketch11.addConstraint(Sketcher.Constraint("Horizontal", 4, 2, 8, 2))
sketch11.addConstraint(Sketcher.Constraint("Vertical", 0, 2, 9, 2))
sketch11.addConstraint(Sketcher.Constraint("Vertical", 2, 2, 10, 2))
sketch11.addConstraint(Sketcher.Constraint("Equal", 2, 3))
sketch11.addConstraint(Sketcher.Constraint("DistanceY", -1, 1, 5, 2, Q("0.39 in")))
sketch11.addConstraint(Sketcher.Constraint("DistanceY", -1, 1, 0, 2, Q("0.705 in")))
sketch11.addConstraint(Sketcher.Constraint("DistanceX", 3, 2, -1, 1, Q("2.258 in")))
sketch11.addConstraint(Sketcher.Constraint("DistanceY", -1, 1, 9, 2, Q("0.075 in")))
sketch11.addConstraint(Sketcher.Constraint("Distance", 1, Q("0.4449 in")))
sketch11.addConstraint(Sketcher.Constraint("DistanceX", 0, 2, 0, 1, 18.5526))
sketch11.addConstraint(Sketcher.Constraint("DistanceX", 6, 2, -1, 1, Q("1.3525 in")))
sketch11.addConstraint(Sketcher.Constraint("DistanceX", 0, 2, -1, 1, 55.1298))
pocket5 = body.newObject("PartDesign::Pocket", "Pocket004")
pocket5.Profile = sketch11
pocket5.Length = Q("2 in")

# Sketch on YZ plane
sketch12 = body.newObject("Sketcher::SketchObject", "Sketch011")
sketch12.AttachmentSupport = (doc.getObject("YZ_Plane"), [""])
sketch12.MapMode = "FlatFace"
sketch12.AttachmentOffset = App.Placement(App.Vector(0, 0, -2.3330118 * 25.4), App.Rotation())
add_polygon(sketch12, [(17.907, 21.829823), (17.907, -0.188623), (11.382249, 10.8206)])  # lines 0-2
add_polygon(sketch12, [(9.906, 8.329723), (16.430751, -2.6795), (3.381249, -2.6795)])  # lines 3-5
add_polygon(sketch12, [(3.38126, 24.320682), (16.430644, 24.320518), (9.906, 13.311477)])  # lines 6-8
add_polygon(sketch12, [(8.429751, 10.8206), (1.905, -0.188623), (1.905, 21.829823)])  # lines 9-11
sketch12.addConstraint(Sketcher.Constraint("Vertical", 0))
sketch12.addConstraint(Sketcher.Constraint("Horizontal", 4))
sketch12.addConstraint(Sketcher.Constraint("Horizontal", 6))
sketch12.addConstraint(Sketcher.Constraint("Vertical", 10))
sketch12.addConstraint(Sketcher.Constraint("Parallel", 1, 3))
sketch12.addConstraint(Sketcher.Constraint("Parallel", 2, 5))
sketch12.addConstraint(Sketcher.Constraint("Parallel", 5, 7))
sketch12.addConstraint(Sketcher.Constraint("Parallel", 3, 8))
sketch12.addConstraint(Sketcher.Constraint("Parallel", 7, 9))
sketch12.addConstraint(Sketcher.Constraint("Parallel", 8, 11))
sketch12.addConstraint(Sketcher.Constraint("Horizontal", 0, 2, 9, 2))
sketch12.addConstraint(Sketcher.Constraint("Horizontal", 2, 2, 10, 2))
sketch12.addConstraint(Sketcher.Constraint("Horizontal", 1, 2, 11, 2))
sketch12.addConstraint(Sketcher.Constraint("Vertical", 3, 2, 6, 2))
sketch12.addConstraint(Sketcher.Constraint("Vertical", 5, 2, 7, 2))
sketch12.addConstraint(Sketcher.Constraint("Equal", 2, 3))
sketch12.addConstraint(Sketcher.Constraint("DistanceY", 3, 2, 6, 2, Q("1.063 in")))
sketch12.addConstraint(Sketcher.Constraint("DistanceX", -1, 1, 5, 2, Q("0.39 in")))
sketch12.addConstraint(Sketcher.Constraint("DistanceX", -1, 1, 0, 2, Q("0.705 in")))
sketch12.addConstraint(Sketcher.Constraint("DistanceY", -1, 1, 1, 2, Q("0.426 in")))
sketch12.addConstraint(Sketcher.Constraint("DistanceX", -1, 1, 9, 2, Q("0.075 in")))
sketch12.addConstraint(Sketcher.Constraint("DistanceX", 4, 2, 4, 1, 13.0495))
sketch12.addConstraint(Sketcher.Constraint("DistanceY", 0, 2, 0, 1, 22.0184))
sketch12.addConstraint(Sketcher.Constraint("DistanceY", 3, 2, -1, 1, Q("0.1055 in")))
pocket6 = body.newObject("PartDesign::Pocket", "Pocket005")
pocket6.Profile = sketch12
pocket6.Length = Q("0.1 in")
pocket6.Reversed = True

# Sketch on YZ plane
sketch13 = body.newObject("Sketcher::SketchObject", "Sketch012")
sketch13.AttachmentSupport = (doc.getObject("YZ_Plane"), [""])
sketch13.MapMode = "FlatFace"
sketch13.AttachmentOffset = App.Placement(App.Vector(0, 0, -1.2025 * 25.4), App.Rotation())
add_polygon(sketch13, [(4.029213, -2.6795), (16.417787, -2.6795), (10.2235, 7.436049)])  # lines 0-2
add_polygon(sketch13, [(11.712713, 9.868), (17.907, -0.247549), (17.907, 19.983549)])  # lines 3-5
add_polygon(sketch13, [(2.54, -0.247549), (8.734287, 9.868), (2.54, 19.983549)])  # lines 6-8
add_polygon(sketch13, [(10.2235, 12.299951), (16.417787, 22.4155), (4.029213, 22.4155)])  # lines 9-11
sketch13.addConstraint(Sketcher.Constraint("Horizontal", 0))
sketch13.addConstraint(Sketcher.Constraint("Vertical", 4))
sketch13.addConstraint(Sketcher.Constraint("Vertical", 8))
sketch13.addConstraint(Sketcher.Constraint("Horizontal", 10))
sketch13.addConstraint(Sketcher.Constraint("Parallel", 1, 3))
sketch13.addConstraint(Sketcher.Constraint("Parallel", 2, 5))
sketch13.addConstraint(Sketcher.Constraint("Parallel", 5, 6))
sketch13.addConstraint(Sketcher.Constraint("Parallel", 3, 7))
sketch13.addConstraint(Sketcher.Constraint("Parallel", 6, 9))
sketch13.addConstraint(Sketcher.Constraint("Parallel", 7, 11))
sketch13.addConstraint(Sketcher.Constraint("Horizontal", 5, 2, 6, 2))
sketch13.addConstraint(Sketcher.Constraint("Horizontal", 4, 2, 7, 2))
sketch13.addConstraint(Sketcher.Constraint("Horizontal", 3, 2, 8, 2))
sketch13.addConstraint(Sketcher.Constraint("Vertical", 0, 2, 9, 2))
sketch13.addConstraint(Sketcher.Constraint("Vertical", 2, 2, 10, 2))
sketch13.addConstraint(Sketcher.Constraint("Equal", 2, 3))
sketch13.addConstraint(Sketcher.Constraint("DistanceX", -1, 1, 7, 2, Q("0.1 in")))
sketch13.addConstraint(Sketcher.Constraint("DistanceY", 4, 1, 4, 2, Q("0.7965 in")))
sketch13.addConstraint(Sketcher.Constraint("DistanceX", -1, 1, 3, 2, Q("0.705 in")))
sketch13.addConstraint(Sketcher.Constraint("DistanceY", 1, 2, 4, 2, Q("0.494 in")))
sketch13.addConstraint(Sketcher.Constraint("DistanceY", 5, 2, 9, 2, Q("0.494 in")))
sketch13.addConstraint(Sketcher.Constraint("DistanceX", 0, 1, 0, 2, 12.3886))
sketch13.addConstraint(Sketcher.Constraint("DistanceY", 0, 2, -1, 1, Q("0.1055 in")))
sketch13.addConstraint(Sketcher.Constraint("DistanceX", -1, 1, 1, 2, Q("0.4025 in")))
pocket7 = body.newObject("PartDesign::Pocket", "Pocket006")
pocket7.Profile = sketch13
pocket7.Length = Q("0.2 in")

# Sketch on XZ plane
sketch14 = body.newObject("Sketcher::SketchObject", "Sketch013")
sketch14.AttachmentSupport = (doc.getObject("XZ_Plane"), [""])
sketch14.MapMode = "FlatFace"
sketch14.AttachmentOffset = App.Placement(App.Vector(0, 0, -0.78 * 25.4), App.Rotation())
add_polygon(sketch14, [(-57.3535, -0.720961), (-57.3535, 22.362221), (-50.9335, 14.825653), (-50.9335, 6.815561)])  # lines 0-3
add_polygon(sketch14, [(-49.265166, 16.7841), (-55.685007, 24.3205), (-36.021885, 24.3205), (-42.441781, 16.7841)])  # lines 4-7
add_polygon(sketch14, [(-36.021796, -2.6795), (-55.685115, -2.6795), (-49.265048, 4.8571), (-42.441823, 4.8571)])  # lines 8-11
add_polygon(sketch14, [(-40.7735, 14.825439), (-34.3535, 22.361961), (-34.3535, -0.721051), (-40.7735, 6.815536)])  # lines 12-15
sketch14.addConstraint(Sketcher.Constraint("Vertical", 0))
sketch14.addConstraint(Sketcher.Constraint("Vertical", 2))
sketch14.addConstraint(Sketcher.Constraint("Horizontal", 5))
sketch14.addConstraint(Sketcher.Constraint("Horizontal", 7))
sketch14.addConstraint(Sketcher.Constraint("Horizontal", 8))
sketch14.addConstraint(Sketcher.Constraint("Horizontal", 10))
sketch14.addConstraint(Sketcher.Constraint("Vertical", 13))
sketch14.addConstraint(Sketcher.Constraint("Vertical", 15))
sketch14.addConstraint(Sketcher.Constraint("Parallel", 1, 4))
sketch14.addConstraint(Sketcher.Constraint("Parallel", 3, 6))
sketch14.addConstraint(Sketcher.Constraint("Parallel", 6, 9))
sketch14.addConstraint(Sketcher.Constraint("Parallel", 4, 11))
sketch14.addConstraint(Sketcher.Constraint("Parallel", 9, 12))
sketch14.addConstraint(Sketcher.Constraint("Parallel", 11, 14))
sketch14.addConstraint(Sketcher.Constraint("Horizontal", 3, 2, 13, 2))
sketch14.addConstraint(Sketcher.Constraint("Horizontal", 2, 2, 14, 2))
sketch14.addConstraint(Sketcher.Constraint("Vertical", 4, 2, 8, 2))
sketch14.addConstraint(Sketcher.Constraint("Vertical", 7, 2, 9, 2))
sketch14.addConstraint(Sketcher.Constraint("Vertical", 6, 2, 10, 2))
sketch14.addConstraint(Sketcher.Constraint("Vertical", 5, 2, 11, 2))
sketch14.addConstraint(Sketcher.Constraint("Equal", 0, 13))
sketch14.addConstraint(Sketcher.Constraint("Equal", 3, 4))
sketch14.addConstraint(Sketcher.Constraint("DistanceX", 2, 2, 14, 2, Q("0.4 in")))
sketch14.addConstraint(Sketcher.Constraint("DistanceX", 0, 2, -1, 1, Q("2.258 in")))
sketch14.addConstraint(Sketcher.Constraint("DistanceX", 5, 1, 5, 2, 19.6631))
sketch14.addConstraint(Sketcher.Constraint("DistanceX", 7, 2, 7, 1, 6.8234))
sketch14.addConstraint(Sketcher.Constraint("DistanceY", 0, 1, 0, 2, 23.0832))
sketch14.addConstraint(Sketcher.Constraint("DistanceY", 2, 2, 2, 1, 8.01))
sketch14.addConstraint(Sketcher.Constraint("DistanceY", -1, 1, 0, 2, Q("0.8804 in")))
sketch14.addConstraint(Sketcher.Constraint("DistanceY", -1, 1, 4, 2, Q("0.9575 in")))
sketch14.addConstraint(Sketcher.Constraint("DistanceY", 8, 2, -1, 1, Q("0.1055 in")))
sketch14.addConstraint(Sketcher.Constraint("DistanceX", 0, 2, 4, 2, Q("0.0657 in")))
pocket8 = body.newObject("PartDesign::Pocket", "Pocket007")
pocket8.Profile = sketch14
pocket8.Length = Q("0.2 in")
pocket8.Reversed = True

# Sketch on XZ plane
sketch15 = body.newObject("Sketcher::SketchObject", "Sketch014")
sketch15.AttachmentSupport = (doc.getObject("XZ_Plane"), [""])
sketch15.MapMode = "FlatFace"
sketch15.AttachmentOffset = App.Placement(App.Vector(0, 0, -0.78 * 25.4), App.Rotation())
add_polygon(sketch15, [(-34.3535, -2.6795), (-57.3535, -2.6795), (-57.3535, 24.3205), (-34.3535, 24.3205)])  # lines 0-3
sketch15.addConstraint(Sketcher.Constraint("Horizontal", 0))
sketch15.addConstraint(Sketcher.Constraint("Vertical", 1))
sketch15.addConstraint(Sketcher.Constraint("Horizontal", 2))
sketch15.addConstraint(Sketcher.Constraint("Vertical", 3))
sketch15.addConstraint(Sketcher.Constraint("DistanceY", 1, 1, 1, 2, Q("1.063 in")))
sketch15.addConstraint(Sketcher.Constraint("DistanceX", 0, 2, 0, 1, Q("0.9055 in")))
sketch15.addConstraint(Sketcher.Constraint("DistanceX", 0, 2, -1, 1, Q("2.258 in")))
sketch15.addConstraint(Sketcher.Constraint("DistanceY", 0, 2, -1, 1, Q("0.1055 in")))
pocket9 = body.newObject("PartDesign::Pocket", "Pocket008")
pocket9.Profile = sketch15
pocket9.Length = Q("1 in")
pocket9.Reversed = True

doc.recompute()
